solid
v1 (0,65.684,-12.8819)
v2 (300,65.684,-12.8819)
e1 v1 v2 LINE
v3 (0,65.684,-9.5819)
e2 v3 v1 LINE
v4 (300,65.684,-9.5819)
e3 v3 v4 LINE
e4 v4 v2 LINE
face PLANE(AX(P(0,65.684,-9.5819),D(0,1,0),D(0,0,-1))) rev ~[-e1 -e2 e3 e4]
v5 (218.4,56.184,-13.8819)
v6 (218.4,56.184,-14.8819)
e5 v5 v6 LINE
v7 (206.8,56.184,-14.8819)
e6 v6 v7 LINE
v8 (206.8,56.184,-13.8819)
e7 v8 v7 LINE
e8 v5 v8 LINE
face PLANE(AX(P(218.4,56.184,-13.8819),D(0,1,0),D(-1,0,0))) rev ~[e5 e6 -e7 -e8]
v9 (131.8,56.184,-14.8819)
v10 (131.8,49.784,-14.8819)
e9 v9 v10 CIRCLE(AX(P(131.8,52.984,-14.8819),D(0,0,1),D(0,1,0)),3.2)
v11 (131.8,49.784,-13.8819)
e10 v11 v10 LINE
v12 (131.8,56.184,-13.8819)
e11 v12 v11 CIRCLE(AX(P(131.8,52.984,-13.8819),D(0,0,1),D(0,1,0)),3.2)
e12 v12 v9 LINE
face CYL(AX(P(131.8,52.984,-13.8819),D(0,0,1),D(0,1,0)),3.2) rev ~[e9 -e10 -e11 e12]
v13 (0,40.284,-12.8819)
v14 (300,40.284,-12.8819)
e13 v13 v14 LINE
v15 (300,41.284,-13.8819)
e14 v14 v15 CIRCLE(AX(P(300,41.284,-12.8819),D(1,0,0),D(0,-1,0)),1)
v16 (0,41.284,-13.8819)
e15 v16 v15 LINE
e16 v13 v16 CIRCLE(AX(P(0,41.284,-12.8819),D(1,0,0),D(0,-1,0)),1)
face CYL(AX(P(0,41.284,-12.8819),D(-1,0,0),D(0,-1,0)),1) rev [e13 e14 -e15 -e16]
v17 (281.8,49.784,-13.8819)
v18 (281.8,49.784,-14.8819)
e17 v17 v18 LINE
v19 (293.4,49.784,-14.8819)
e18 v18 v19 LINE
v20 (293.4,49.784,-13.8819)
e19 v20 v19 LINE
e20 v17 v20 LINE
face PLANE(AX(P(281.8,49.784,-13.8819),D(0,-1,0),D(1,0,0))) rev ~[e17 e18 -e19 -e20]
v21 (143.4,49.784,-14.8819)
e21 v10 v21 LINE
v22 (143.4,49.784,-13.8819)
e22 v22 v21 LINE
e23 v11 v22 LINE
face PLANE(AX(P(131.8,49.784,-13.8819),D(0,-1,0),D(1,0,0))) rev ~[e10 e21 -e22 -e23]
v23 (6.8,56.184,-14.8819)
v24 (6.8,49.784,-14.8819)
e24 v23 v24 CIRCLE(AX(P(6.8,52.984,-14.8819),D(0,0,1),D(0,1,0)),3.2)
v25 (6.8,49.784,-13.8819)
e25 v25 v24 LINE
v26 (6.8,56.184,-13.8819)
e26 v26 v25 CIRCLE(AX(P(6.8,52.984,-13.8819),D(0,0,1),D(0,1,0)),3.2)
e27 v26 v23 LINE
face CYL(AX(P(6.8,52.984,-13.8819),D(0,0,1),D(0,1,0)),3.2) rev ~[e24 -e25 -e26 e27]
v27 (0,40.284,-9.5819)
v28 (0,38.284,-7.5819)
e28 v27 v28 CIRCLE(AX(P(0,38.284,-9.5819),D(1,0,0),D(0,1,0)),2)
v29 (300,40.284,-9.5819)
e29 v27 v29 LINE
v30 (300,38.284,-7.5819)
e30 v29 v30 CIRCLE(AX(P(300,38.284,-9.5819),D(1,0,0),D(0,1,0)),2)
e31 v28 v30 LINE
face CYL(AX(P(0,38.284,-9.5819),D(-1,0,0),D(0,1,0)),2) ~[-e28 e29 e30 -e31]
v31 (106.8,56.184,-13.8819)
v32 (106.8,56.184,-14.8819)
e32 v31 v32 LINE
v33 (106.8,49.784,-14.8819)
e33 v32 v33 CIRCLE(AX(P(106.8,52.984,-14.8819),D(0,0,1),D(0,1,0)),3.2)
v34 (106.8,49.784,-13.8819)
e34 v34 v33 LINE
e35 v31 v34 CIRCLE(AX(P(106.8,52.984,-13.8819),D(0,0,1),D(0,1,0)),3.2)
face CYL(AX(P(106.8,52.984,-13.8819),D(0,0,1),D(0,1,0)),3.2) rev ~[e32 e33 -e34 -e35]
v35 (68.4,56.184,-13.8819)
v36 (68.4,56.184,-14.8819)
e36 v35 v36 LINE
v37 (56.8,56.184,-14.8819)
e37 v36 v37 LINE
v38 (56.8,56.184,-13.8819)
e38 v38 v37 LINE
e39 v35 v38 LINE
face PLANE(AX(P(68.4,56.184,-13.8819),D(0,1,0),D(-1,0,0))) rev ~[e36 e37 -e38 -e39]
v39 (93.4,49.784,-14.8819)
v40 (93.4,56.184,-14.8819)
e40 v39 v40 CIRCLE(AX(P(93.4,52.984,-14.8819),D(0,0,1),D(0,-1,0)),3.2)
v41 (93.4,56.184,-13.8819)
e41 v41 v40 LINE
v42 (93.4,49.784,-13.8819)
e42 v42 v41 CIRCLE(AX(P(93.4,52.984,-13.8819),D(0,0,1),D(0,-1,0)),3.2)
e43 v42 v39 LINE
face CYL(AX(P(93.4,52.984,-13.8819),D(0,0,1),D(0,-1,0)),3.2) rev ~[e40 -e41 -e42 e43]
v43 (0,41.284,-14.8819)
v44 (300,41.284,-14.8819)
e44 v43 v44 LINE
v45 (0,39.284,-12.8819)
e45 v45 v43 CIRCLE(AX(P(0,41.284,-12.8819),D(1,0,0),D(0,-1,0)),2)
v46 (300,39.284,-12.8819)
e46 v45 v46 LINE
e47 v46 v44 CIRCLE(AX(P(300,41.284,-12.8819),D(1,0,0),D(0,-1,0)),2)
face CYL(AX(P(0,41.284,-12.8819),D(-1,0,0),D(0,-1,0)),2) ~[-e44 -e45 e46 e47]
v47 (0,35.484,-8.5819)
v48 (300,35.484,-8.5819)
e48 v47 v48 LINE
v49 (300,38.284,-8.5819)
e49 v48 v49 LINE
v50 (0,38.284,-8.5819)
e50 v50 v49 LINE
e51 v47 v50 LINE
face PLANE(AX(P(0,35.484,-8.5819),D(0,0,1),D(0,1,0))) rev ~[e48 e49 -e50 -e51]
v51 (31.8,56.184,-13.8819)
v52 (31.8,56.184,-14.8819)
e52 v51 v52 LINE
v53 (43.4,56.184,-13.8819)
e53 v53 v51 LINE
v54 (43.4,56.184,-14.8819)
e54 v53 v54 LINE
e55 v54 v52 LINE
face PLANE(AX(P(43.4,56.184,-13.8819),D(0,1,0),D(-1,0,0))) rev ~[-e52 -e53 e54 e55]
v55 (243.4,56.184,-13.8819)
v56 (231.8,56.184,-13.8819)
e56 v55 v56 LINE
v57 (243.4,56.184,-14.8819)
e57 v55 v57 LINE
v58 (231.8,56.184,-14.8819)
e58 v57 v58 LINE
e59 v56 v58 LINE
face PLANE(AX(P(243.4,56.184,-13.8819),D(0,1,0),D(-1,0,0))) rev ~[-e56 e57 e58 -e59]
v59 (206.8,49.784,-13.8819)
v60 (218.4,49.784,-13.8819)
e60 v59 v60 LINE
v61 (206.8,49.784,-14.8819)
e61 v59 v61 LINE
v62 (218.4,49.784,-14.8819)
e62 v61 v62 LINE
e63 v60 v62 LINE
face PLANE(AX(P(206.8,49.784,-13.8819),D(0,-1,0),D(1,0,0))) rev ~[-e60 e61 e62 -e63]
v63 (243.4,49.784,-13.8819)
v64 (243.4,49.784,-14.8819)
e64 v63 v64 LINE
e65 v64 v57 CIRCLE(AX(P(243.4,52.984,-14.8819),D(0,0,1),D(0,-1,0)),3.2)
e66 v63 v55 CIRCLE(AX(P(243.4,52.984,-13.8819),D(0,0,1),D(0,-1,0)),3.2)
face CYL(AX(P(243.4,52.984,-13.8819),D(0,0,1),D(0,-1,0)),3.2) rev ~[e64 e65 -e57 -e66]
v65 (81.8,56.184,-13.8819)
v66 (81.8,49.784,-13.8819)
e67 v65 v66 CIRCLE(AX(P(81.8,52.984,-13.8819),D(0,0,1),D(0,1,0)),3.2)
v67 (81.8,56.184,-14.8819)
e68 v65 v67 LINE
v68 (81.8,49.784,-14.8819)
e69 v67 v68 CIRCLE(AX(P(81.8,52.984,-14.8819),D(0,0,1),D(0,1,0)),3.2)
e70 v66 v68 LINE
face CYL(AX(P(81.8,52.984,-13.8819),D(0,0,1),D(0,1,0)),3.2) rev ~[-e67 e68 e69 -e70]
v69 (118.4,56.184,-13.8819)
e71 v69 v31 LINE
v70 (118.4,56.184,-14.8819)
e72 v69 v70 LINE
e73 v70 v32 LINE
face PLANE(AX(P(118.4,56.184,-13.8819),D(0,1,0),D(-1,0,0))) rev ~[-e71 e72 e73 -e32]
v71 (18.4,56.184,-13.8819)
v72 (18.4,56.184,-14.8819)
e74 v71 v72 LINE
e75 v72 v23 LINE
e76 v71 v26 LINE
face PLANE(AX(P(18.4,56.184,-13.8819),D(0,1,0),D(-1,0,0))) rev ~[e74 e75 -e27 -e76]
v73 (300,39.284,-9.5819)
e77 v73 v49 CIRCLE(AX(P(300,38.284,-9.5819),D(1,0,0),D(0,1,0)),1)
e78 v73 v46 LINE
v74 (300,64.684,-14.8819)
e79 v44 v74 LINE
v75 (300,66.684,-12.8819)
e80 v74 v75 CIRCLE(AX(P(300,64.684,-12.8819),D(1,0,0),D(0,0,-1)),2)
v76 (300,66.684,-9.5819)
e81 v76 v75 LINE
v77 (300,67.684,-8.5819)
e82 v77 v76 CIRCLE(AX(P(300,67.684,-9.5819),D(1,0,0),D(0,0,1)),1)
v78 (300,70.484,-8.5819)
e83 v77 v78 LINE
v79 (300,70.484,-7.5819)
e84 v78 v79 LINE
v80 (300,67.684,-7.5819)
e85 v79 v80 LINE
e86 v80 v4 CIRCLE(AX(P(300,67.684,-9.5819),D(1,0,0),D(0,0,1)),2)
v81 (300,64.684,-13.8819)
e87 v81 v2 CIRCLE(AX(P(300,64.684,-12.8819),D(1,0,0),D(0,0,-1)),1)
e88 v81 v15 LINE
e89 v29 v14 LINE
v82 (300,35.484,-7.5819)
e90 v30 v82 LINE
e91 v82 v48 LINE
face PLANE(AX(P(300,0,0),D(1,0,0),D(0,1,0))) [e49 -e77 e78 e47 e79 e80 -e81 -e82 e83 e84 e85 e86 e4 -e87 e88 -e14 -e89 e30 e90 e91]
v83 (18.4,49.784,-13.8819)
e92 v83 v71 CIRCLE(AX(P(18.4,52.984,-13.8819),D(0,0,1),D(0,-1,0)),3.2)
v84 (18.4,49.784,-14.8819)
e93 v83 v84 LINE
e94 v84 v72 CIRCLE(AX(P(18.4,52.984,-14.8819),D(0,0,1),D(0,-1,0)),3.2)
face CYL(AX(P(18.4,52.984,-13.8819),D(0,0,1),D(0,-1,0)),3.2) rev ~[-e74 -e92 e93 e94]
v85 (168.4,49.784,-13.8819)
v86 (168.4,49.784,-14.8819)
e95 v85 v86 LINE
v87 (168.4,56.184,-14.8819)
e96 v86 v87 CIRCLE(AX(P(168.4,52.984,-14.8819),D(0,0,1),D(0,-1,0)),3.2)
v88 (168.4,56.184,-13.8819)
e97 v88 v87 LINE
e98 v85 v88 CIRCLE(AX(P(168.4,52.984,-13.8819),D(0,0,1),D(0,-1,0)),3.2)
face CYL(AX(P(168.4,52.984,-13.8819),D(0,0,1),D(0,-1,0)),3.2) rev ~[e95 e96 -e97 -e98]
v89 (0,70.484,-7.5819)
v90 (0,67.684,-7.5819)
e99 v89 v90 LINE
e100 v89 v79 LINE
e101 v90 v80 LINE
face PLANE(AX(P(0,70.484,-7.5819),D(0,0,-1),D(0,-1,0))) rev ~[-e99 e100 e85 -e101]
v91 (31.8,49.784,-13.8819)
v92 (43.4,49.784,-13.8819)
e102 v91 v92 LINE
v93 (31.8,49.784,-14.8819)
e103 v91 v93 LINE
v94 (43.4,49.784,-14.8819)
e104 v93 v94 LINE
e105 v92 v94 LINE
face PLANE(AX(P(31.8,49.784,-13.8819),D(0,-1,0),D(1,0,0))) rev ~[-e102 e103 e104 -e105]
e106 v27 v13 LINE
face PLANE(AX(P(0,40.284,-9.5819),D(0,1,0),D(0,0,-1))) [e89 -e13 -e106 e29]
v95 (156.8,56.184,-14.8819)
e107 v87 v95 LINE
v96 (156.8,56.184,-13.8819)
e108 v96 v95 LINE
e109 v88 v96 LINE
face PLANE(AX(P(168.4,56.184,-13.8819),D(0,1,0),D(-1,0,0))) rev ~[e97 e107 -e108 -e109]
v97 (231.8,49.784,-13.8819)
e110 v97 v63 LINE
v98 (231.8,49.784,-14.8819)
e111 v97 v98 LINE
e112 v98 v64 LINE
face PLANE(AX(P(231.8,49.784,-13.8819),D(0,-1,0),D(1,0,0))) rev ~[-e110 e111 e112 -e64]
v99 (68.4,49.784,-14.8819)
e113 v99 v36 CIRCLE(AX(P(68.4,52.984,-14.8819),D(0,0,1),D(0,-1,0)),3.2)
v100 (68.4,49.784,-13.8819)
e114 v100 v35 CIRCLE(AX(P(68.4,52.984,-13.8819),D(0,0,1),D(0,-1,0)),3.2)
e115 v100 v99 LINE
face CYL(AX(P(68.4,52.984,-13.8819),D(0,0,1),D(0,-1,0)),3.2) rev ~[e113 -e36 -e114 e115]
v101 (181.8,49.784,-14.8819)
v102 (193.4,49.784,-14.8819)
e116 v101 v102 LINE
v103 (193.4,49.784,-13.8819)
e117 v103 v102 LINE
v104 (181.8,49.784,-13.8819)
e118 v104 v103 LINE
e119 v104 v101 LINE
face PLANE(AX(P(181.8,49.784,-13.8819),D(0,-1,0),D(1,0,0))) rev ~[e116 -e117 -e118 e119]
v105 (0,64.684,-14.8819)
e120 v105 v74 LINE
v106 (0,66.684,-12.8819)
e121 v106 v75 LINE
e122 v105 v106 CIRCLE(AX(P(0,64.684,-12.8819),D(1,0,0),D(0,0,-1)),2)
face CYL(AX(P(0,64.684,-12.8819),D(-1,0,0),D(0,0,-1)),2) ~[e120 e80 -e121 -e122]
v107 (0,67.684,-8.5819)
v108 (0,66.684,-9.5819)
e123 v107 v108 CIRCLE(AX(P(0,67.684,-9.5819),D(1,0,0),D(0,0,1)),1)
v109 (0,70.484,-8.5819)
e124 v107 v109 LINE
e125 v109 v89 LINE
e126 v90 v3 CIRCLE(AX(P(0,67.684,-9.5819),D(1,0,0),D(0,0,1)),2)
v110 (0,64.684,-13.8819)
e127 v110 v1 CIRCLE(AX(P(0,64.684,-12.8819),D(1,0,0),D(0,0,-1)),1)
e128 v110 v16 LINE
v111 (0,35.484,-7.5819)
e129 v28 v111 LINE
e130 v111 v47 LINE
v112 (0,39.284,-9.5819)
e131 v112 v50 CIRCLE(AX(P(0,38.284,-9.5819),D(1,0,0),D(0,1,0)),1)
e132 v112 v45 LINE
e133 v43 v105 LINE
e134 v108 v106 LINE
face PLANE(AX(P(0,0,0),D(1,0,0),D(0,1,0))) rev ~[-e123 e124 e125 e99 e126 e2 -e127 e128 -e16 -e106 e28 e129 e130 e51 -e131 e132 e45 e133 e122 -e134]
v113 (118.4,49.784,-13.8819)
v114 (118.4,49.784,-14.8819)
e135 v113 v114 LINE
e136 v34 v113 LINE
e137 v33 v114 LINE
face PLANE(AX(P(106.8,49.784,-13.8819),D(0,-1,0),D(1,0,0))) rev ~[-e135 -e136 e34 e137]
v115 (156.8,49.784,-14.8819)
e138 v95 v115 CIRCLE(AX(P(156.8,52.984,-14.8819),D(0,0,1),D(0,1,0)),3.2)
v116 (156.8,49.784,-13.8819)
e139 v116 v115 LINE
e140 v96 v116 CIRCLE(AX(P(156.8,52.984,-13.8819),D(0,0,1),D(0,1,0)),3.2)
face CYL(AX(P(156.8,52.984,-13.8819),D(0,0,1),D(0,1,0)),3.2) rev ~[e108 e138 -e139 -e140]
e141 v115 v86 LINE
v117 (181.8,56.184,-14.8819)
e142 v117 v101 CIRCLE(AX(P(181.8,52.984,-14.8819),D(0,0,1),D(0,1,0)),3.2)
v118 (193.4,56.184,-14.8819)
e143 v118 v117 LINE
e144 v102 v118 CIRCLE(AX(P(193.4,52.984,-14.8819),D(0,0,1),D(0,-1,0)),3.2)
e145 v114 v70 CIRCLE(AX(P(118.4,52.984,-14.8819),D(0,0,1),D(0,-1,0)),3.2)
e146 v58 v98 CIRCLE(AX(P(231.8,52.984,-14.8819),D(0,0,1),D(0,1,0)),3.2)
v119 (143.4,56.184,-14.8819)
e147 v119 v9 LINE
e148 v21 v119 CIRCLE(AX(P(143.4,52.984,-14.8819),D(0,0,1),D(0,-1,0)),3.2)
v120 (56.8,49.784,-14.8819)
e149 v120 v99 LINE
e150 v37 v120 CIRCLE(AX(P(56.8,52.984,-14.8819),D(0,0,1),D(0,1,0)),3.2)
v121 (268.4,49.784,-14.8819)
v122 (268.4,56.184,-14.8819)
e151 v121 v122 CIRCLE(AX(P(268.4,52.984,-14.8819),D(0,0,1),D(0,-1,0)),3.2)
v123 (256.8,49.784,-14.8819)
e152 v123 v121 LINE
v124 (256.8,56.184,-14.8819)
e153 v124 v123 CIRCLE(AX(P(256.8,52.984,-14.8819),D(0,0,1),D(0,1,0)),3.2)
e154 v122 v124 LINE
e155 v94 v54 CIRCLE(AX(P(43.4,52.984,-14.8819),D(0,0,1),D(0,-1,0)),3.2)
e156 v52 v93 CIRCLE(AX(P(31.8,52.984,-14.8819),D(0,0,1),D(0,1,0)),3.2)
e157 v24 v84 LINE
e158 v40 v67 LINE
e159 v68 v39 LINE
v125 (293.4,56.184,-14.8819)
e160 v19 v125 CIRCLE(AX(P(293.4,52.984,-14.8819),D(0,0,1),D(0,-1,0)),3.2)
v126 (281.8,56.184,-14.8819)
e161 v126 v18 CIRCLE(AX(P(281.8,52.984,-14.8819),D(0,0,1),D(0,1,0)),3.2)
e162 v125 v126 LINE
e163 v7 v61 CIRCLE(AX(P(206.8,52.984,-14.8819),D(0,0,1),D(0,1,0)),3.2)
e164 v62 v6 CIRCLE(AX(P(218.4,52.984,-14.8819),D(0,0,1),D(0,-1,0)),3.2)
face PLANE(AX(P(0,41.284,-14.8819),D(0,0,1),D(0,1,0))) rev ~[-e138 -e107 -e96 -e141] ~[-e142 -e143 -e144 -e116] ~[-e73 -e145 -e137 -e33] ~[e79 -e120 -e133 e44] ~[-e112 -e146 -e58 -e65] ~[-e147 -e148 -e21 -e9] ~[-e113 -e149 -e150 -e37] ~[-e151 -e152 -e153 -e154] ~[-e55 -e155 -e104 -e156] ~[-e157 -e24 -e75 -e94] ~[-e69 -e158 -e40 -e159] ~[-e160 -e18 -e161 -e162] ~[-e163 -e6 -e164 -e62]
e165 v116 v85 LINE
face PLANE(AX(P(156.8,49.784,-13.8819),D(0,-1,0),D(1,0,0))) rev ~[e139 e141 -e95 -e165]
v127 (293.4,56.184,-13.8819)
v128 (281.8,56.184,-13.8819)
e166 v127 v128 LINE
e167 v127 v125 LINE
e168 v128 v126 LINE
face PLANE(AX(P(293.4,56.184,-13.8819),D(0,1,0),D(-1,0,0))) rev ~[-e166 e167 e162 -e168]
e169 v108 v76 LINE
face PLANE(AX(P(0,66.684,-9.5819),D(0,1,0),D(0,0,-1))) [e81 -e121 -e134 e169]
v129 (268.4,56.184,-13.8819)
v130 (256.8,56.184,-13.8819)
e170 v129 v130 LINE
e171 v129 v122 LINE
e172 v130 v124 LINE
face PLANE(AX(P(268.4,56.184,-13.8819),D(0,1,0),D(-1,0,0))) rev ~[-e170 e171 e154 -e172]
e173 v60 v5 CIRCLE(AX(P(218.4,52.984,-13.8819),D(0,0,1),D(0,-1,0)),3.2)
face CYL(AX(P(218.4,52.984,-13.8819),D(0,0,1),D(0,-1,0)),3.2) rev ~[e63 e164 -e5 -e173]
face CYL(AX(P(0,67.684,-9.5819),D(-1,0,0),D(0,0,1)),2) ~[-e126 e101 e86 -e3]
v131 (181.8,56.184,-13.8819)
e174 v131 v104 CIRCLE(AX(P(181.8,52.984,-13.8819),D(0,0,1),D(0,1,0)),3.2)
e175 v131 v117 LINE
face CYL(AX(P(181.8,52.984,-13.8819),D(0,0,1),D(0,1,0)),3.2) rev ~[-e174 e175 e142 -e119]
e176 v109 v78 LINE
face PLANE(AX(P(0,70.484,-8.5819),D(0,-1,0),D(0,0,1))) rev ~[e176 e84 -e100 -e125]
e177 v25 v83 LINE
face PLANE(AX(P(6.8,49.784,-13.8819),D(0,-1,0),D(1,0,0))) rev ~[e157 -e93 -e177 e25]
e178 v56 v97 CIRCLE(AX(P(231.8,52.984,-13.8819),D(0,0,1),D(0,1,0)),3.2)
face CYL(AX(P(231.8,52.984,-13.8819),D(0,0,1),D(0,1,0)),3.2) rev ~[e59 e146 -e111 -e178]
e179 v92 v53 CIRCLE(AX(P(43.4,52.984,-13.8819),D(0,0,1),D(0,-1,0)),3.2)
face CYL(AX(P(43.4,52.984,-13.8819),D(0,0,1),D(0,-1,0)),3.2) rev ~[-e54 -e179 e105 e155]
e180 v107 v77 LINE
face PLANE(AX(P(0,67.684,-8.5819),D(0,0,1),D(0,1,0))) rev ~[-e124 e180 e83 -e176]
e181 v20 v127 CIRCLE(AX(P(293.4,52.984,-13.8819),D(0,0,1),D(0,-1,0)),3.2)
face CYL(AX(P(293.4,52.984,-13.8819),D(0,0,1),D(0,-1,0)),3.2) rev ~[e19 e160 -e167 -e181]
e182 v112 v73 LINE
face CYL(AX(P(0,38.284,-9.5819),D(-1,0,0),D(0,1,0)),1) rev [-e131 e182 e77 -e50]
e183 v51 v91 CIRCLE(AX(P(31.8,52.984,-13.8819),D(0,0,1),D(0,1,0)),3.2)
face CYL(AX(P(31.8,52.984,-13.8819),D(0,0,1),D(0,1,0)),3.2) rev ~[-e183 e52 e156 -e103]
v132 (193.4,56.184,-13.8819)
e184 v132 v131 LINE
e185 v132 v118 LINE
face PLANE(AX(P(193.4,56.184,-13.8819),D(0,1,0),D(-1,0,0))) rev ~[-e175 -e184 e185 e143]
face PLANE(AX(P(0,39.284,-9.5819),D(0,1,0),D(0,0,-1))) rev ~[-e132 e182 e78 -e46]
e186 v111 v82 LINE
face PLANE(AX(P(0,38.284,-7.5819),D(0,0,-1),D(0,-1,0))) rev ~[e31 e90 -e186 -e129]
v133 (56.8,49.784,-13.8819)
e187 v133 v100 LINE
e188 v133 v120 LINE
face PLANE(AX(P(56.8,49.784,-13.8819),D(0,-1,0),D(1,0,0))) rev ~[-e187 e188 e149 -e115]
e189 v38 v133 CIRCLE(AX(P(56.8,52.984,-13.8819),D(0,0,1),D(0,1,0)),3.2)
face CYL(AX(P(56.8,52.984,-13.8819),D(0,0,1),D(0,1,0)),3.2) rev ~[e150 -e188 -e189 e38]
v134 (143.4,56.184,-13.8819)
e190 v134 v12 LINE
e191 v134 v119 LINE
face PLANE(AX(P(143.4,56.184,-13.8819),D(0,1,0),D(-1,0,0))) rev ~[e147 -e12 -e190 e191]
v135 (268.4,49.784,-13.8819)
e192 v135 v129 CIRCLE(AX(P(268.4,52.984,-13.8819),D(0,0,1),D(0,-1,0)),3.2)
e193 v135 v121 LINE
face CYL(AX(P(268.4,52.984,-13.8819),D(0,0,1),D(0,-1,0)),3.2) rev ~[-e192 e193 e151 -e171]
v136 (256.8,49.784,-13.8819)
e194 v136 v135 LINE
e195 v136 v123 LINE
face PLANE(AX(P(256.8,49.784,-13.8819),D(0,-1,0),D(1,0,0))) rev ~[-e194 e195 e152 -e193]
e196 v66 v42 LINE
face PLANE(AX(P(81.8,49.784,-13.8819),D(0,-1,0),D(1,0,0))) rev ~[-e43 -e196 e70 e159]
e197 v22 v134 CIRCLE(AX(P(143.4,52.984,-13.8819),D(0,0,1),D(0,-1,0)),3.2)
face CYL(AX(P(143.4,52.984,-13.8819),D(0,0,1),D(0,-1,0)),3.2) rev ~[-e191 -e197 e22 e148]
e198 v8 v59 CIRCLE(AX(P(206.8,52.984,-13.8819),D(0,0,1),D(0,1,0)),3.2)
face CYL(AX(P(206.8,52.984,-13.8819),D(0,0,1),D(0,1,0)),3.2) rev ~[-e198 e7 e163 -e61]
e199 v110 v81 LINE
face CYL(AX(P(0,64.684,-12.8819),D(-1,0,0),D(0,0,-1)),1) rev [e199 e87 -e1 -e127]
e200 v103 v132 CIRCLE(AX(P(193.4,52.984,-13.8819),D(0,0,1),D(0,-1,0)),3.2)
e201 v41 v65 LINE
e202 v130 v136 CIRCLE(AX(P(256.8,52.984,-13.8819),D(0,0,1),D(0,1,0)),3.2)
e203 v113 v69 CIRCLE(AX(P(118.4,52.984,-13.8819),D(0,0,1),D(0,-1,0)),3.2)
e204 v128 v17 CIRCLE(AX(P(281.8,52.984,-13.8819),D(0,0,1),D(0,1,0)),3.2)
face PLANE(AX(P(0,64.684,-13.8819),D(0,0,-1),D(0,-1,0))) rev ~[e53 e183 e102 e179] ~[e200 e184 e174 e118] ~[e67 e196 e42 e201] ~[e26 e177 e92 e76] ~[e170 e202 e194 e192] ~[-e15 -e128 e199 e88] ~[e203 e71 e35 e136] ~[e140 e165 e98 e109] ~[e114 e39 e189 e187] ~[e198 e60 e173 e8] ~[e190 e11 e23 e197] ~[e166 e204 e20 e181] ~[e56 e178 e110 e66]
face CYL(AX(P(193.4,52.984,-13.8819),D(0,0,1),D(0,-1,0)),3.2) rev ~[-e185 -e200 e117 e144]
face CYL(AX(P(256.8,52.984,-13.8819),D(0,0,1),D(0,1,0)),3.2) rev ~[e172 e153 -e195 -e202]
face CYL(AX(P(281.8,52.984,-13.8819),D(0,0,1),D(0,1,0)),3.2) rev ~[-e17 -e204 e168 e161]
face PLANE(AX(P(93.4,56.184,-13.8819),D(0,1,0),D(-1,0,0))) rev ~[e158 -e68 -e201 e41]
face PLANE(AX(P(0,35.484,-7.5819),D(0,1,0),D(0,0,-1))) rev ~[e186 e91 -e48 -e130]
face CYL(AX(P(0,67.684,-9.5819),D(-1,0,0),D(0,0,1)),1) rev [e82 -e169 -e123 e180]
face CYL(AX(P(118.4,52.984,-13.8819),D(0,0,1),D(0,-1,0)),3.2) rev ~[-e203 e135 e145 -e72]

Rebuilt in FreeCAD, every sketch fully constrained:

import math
import FreeCAD as App
import Part
import Sketcher
from FreeCAD import Vector

doc = App.newDocument("Part")
params = doc.addObject("Spreadsheet::Sheet", "Params")
for row, (alias, value) in enumerate([
    ("sketch1_radius", "2 mm"),
    ("sketch1_radius2", "1 mm"),
    ("sketch1_width", "23.4 mm"),
    ("sketch1_height", "3.3 mm"),
    ("pad1_length", "300 mm"),
    ("sketch2_radius", "3.2 mm"),
    ("sketch2_width", "11.6 mm"),
    ("pocket1_length", "25 mm"),
], start=1):
    params.set(f"A{row}", alias)
    params.set(f"B{row}", "=" + value)
    params.setAlias(f"B{row}", alias)

body = doc.addObject("PartDesign::Body", "Body")

# Sketch on YZ plane
sketch1 = body.newObject("Sketcher::SketchObject", "Sketch")
sketch1.AttachmentSupport = (doc.getObject("YZ_Plane"), [""])
sketch1.MapMode = "FlatFace"
sketch1.addGeometry(Part.ArcOfCircle(Part.Circle(Vector(41.3, -12.9, 0), Vector(0, 0, 1), 2), math.radians(180), math.radians(270)), False)
sketch1.addGeometry(Part.LineSegment(Vector(41.3, -14.9, 0), Vector(64.7, -14.9, 0)), False)
sketch1.addGeometry(Part.ArcOfCircle(Part.Circle(Vector(64.7, -12.9, 0), Vector(0, 0, 1), 2), math.radians(-90), math.radians(0)), False)
sketch1.addGeometry(Part.LineSegment(Vector(66.7, -12.9, 0), Vector(66.7, -9.6, 0)), False)
sketch1.addGeometry(Part.ArcOfCircle(Part.Circle(Vector(67.7, -9.6, 0), Vector(0, 0, 1), 1), math.radians(90), math.radians(180)), False)
sketch1.addGeometry(Part.LineSegment(Vector(67.7, -8.6, 0), Vector(70.5, -8.6, 0)), False)
sketch1.addGeometry(Part.LineSegment(Vector(70.5, -8.6, 0), Vector(70.5, -7.6, 0)), False)
sketch1.addGeometry(Part.LineSegment(Vector(70.5, -7.6, 0), Vector(67.7, -7.6, 0)), False)
sketch1.addGeometry(Part.ArcOfCircle(Part.Circle(Vector(67.7, -9.6, 0), Vector(0, 0, 1), 2), math.radians(90), math.radians(180)), False)
sketch1.addGeometry(Part.LineSegment(Vector(65.7, -9.6, 0), Vector(65.7, -12.9, 0)), False)
sketch1.addGeometry(Part.ArcOfCircle(Part.Circle(Vector(64.7, -12.9, 0), Vector(0, 0, 1), 1), math.radians(-90), math.radians(0)), False)
sketch1.addGeometry(Part.LineSegment(Vector(64.7, -13.9, 0), Vector(41.3, -13.9, 0)), False)
sketch1.addGeometry(Part.ArcOfCircle(Part.Circle(Vector(41.3, -12.9, 0), Vector(0, 0, 1), 1), math.radians(180), math.radians(270)), False)
sketch1.addGeometry(Part.LineSegment(Vector(40.3, -12.9, 0), Vector(40.3, -9.6, 0)), False)
sketch1.addGeometry(Part.ArcOfCircle(Part.Circle(Vector(38.3, -9.6, 0), Vector(0, 0, 1), 2), math.radians(0), math.radians(90)), False)
sketch1.addGeometry(Part.LineSegment(Vector(38.3, -7.6, 0), Vector(35.5, -7.6, 0)), False)
sketch1.addGeometry(Part.LineSegment(Vector(35.5, -7.6, 0), Vector(35.5, -8.6, 0)), False)
sketch1.addGeometry(Part.LineSegment(Vector(35.5, -8.6, 0), Vector(38.3, -8.6, 0)), False)
sketch1.addGeometry(Part.ArcOfCircle(Part.Circle(Vector(38.3, -9.6, 0), Vector(0, 0, 1), 1), math.radians(0), math.radians(90)), False)
sketch1.addGeometry(Part.LineSegment(Vector(39.3, -9.6, 0), Vector(39.3, -12.9, 0)), False)
sketch1.addConstraint(Sketcher.Constraint("Tangent", 0, 2, 1, 1))
sketch1.addConstraint(Sketcher.Constraint("Tangent", 1, 2, 2, 1))
sketch1.addConstraint(Sketcher.Constraint("Tangent", 2, 2, 3, 1))
sketch1.addConstraint(Sketcher.Constraint("Tangent", 3, 2, 4, 2))
sketch1.addConstraint(Sketcher.Constraint("Tangent", 4, 1, 5, 1))
sketch1.addConstraint(Sketcher.Constraint("Coincident", 5, 2, 6, 1))
sketch1.addConstraint(Sketcher.Constraint("Coincident", 6, 2, 7, 1))
sketch1.addConstraint(Sketcher.Constraint("Tangent", 7, 2, 8, 1))
sketch1.addConstraint(Sketcher.Constraint("Tangent", 8, 2, 9, 1))
sketch1.addConstraint(Sketcher.Constraint("Tangent", 9, 2, 10, 2))
sketch1.addConstraint(Sketcher.Constraint("Tangent", 10, 1, 11, 1))
sketch1.addConstraint(Sketcher.Constraint("Tangent", 11, 2, 12, 2))
sketch1.addConstraint(Sketcher.Constraint("Tangent", 12, 1, 13, 1))
sketch1.addConstraint(Sketcher.Constraint("Tangent", 13, 2, 14, 1))
sketch1.addConstraint(Sketcher.Constraint("Tangent", 14, 2, 15, 1))
sketch1.addConstraint(Sketcher.Constraint("Coincident", 15, 2, 16, 1))
sketch1.addConstraint(Sketcher.Constraint("Coincident", 16, 2, 17, 1))
sketch1.addConstraint(Sketcher.Constraint("Tangent", 17, 2, 18, 2))
sketch1.addConstraint(Sketcher.Constraint("Tangent", 18, 1, 19, 1))
sketch1.addConstraint(Sketcher.Constraint("Tangent", 19, 2, 0, 1))
sketch1.addConstraint(Sketcher.Constraint("Horizontal", 1))
sketch1.addConstraint(Sketcher.Constraint("Vertical", 3))
sketch1.addConstraint(Sketcher.Constraint("Horizontal", 5))
sketch1.addConstraint(Sketcher.Constraint("Vertical", 6))
sketch1.addConstraint(Sketcher.Constraint("Horizontal", 7))
sketch1.addConstraint(Sketcher.Constraint("Vertical", 9))
sketch1.addConstraint(Sketcher.Constraint("Horizontal", 11))
sketch1.addConstraint(Sketcher.Constraint("Vertical", 13))
sketch1.addConstraint(Sketcher.Constraint("Horizontal", 15))
sketch1.addConstraint(Sketcher.Constraint("Vertical", 16))
sketch1.addConstraint(Sketcher.Constraint("Horizontal", 17))
sketch1.addConstraint(Sketcher.Constraint("Vertical", 19))
sketch1.addConstraint(Sketcher.Constraint("Coincident", 8, 3, 4, 3))
sketch1.addConstraint(Sketcher.Constraint("Coincident", 10, 3, 2, 3))
sketch1.addConstraint(Sketcher.Constraint("Coincident", 12, 3, 0, 3))
sketch1.addConstraint(Sketcher.Constraint("Coincident", 18, 3, 14, 3))
sketch1.addConstraint(Sketcher.Constraint("Equal", 0, 2))
sketch1.addConstraint(Sketcher.Constraint("Equal", 2, 8))
sketch1.addConstraint(Sketcher.Constraint("Equal", 8, 14))
sketch1.addConstraint(Sketcher.Constraint("Horizontal", 8, 3, 14, 3))
sketch1.addConstraint(Sketcher.Constraint("Equal", 7, 15))
sketch1.addConstraint(Sketcher.Constraint("Radius", 0, 2.0))
sketch1.addConstraint(Sketcher.Constraint("Radius", 4, 1.0))
sketch1.addConstraint(Sketcher.Constraint("DistanceX", 15, 2, 13, 2, 4.8))
sketch1.addConstraint(Sketcher.Constraint("DistanceX", 1, 1, 1, 2, 23.4))
sketch1.addConstraint(Sketcher.Constraint("DistanceY", 3, 1, 3, 2, 3.3))
sketch1.addConstraint(Sketcher.Constraint("DistanceX", -1, 1, 0, 3, 41.284))
sketch1.addConstraint(Sketcher.Constraint("DistanceY", 0, 3, -1, 1, 12.882))
sketch1.setExpression("Constraints[41]", "Params.sketch1_radius")
sketch1.setExpression("Constraints[42]", "Params.sketch1_radius2")
sketch1.setExpression("Constraints[44]", "Params.sketch1_width")
sketch1.setExpression("Constraints[45]", "Params.sketch1_height")
pad1 = body.newObject("PartDesign::Pad", "Pad")
pad1.Profile = sketch1
pad1.setExpression("Length", "Params.pad1_length")

# Sketch on XY plane
sketch2 = body.newObject("Sketcher::SketchObject", "Sketch001")
sketch2.AttachmentSupport = (doc.getObject("XY_Plane"), [""])
sketch2.MapMode = "FlatFace"
sketch2.AttachmentOffset = App.Placement(Vector(0, 0, -13.8819), App.Rotation())
sketch2.addGeometry(Part.ArcOfCircle(Part.Circle(Vector(6.8, 53, 0), Vector(0, 0, 1), 3.2), math.radians(90), math.radians(270)), False)
sketch2.addGeometry(Part.LineSegment(Vector(6.8, 49.8, 0), Vector(18.4, 49.8, 0)), False)
sketch2.addGeometry(Part.ArcOfCircle(Part.Circle(Vector(18.4, 53, 0), Vector(0, 0, 1), 3.2), math.radians(-90), math.radians(90)), False)
sketch2.addGeometry(Part.LineSegment(Vector(18.4, 56.2, 0), Vector(6.8, 56.2, 0)), False)
sketch2.addGeometry(Part.LineSegment(Vector(43.4, 56.2, 0), Vector(31.8, 56.2, 0)), False)
sketch2.addGeometry(Part.ArcOfCircle(Part.Circle(Vector(31.8, 53, 0), Vector(0, 0, 1), 3.2), math.radians(90), math.radians(270)), False)
sketch2.addGeometry(Part.LineSegment(Vector(31.8, 49.8, 0), Vector(43.4, 49.8, 0)), False)
sketch2.addGeometry(Part.ArcOfCircle(Part.Circle(Vector(43.4, 53, 0), Vector(0, 0, 1), 3.2), math.radians(-90), math.radians(90)), False)
sketch2.addGeometry(Part.LineSegment(Vector(68.4, 56.2, 0), Vector(56.8, 56.2, 0)), False)
sketch2.addGeometry(Part.ArcOfCircle(Part.Circle(Vector(56.8, 53, 0), Vector(0, 0, 1), 3.2), math.radians(90), math.radians(270)), False)
sketch2.addGeometry(Part.LineSegment(Vector(56.8, 49.8, 0), Vector(68.4, 49.8, 0)), False)
sketch2.addGeometry(Part.ArcOfCircle(Part.Circle(Vector(68.4, 53, 0), Vector(0, 0, 1), 3.2), math.radians(-90), math.radians(90)), False)
sketch2.addGeometry(Part.LineSegment(Vector(93.4, 56.2, 0), Vector(81.8, 56.2, 0)), False)
sketch2.addGeometry(Part.ArcOfCircle(Part.Circle(Vector(81.8, 53, 0), Vector(0, 0, 1), 3.2), math.radians(90), math.radians(270)), False)
sketch2.addGeometry(Part.LineSegment(Vector(81.8, 49.8, 0), Vector(93.4, 49.8, 0)), False)
sketch2.addGeometry(Part.ArcOfCircle(Part.Circle(Vector(93.4, 53, 0), Vector(0, 0, 1), 3.2), math.radians(-90), math.radians(90)), False)
sketch2.addGeometry(Part.LineSegment(Vector(118.4, 56.2, 0), Vector(106.8, 56.2, 0)), False)
sketch2.addGeometry(Part.ArcOfCircle(Part.Circle(Vector(106.8, 53, 0), Vector(0, 0, 1), 3.2), math.radians(90), math.radians(270)), False)
sketch2.addGeometry(Part.LineSegment(Vector(106.8, 49.8, 0), Vector(118.4, 49.8, 0)), False)
sketch2.addGeometry(Part.ArcOfCircle(Part.Circle(Vector(118.4, 53, 0), Vector(0, 0, 1), 3.2), math.radians(-90), math.radians(90)), False)
sketch2.addGeometry(Part.LineSegment(Vector(143.4, 56.2, 0), Vector(131.8, 56.2, 0)), False)
sketch2.addGeometry(Part.ArcOfCircle(Part.Circle(Vector(131.8, 53, 0), Vector(0, 0, 1), 3.2), math.radians(90), math.radians(270)), False)
sketch2.addGeometry(Part.LineSegment(Vector(131.8, 49.8, 0), Vector(143.4, 49.8, 0)), False)
sketch2.addGeometry(Part.ArcOfCircle(Part.Circle(Vector(143.4, 53, 0), Vector(0, 0, 1), 3.2), math.radians(-90), math.radians(90)), False)
sketch2.addGeometry(Part.LineSegment(Vector(168.4, 56.2, 0), Vector(156.8, 56.2, 0)), False)
sketch2.addGeometry(Part.ArcOfCircle(Part.Circle(Vector(156.8, 53, 0), Vector(0, 0, 1), 3.2), math.radians(90), math.radians(270)), False)
sketch2.addGeometry(Part.LineSegment(Vector(156.8, 49.8, 0), Vector(168.4, 49.8, 0)), False)
sketch2.addGeometry(Part.ArcOfCircle(Part.Circle(Vector(168.4, 53, 0), Vector(0, 0, 1), 3.2), math.radians(-90), math.radians(90)), False)
sketch2.addGeometry(Part.LineSegment(Vector(193.4, 56.2, 0), Vector(181.8, 56.2, 0)), False)
sketch2.addGeometry(Part.ArcOfCircle(Part.Circle(Vector(181.8, 53, 0), Vector(0, 0, 1), 3.2), math.radians(90), math.radians(270)), False)
sketch2.addGeometry(Part.LineSegment(Vector(181.8, 49.8, 0), Vector(193.4, 49.8, 0)), False)
sketch2.addGeometry(Part.ArcOfCircle(Part.Circle(Vector(193.4, 53, 0), Vector(0, 0, 1), 3.2), math.radians(-90), math.radians(90)), False)
sketch2.addGeometry(Part.LineSegment(Vector(218.4, 56.2, 0), Vector(206.8, 56.2, 0)), False)
sketch2.addGeometry(Part.ArcOfCircle(Part.Circle(Vector(206.8, 53, 0), Vector(0, 0, 1), 3.2), math.radians(90), math.radians(270)), False)
sketch2.addGeometry(Part.LineSegment(Vector(206.8, 49.8, 0), Vector(218.4, 49.8, 0)), False)
sketch2.addGeometry(Part.ArcOfCircle(Part.Circle(Vector(218.4, 53, 0), Vector(0, 0, 1), 3.2), math.radians(-90), math.radians(90)), False)
sketch2.addGeometry(Part.LineSegment(Vector(243.4, 56.2, 0), Vector(231.8, 56.2, 0)), False)
sketch2.addGeometry(Part.ArcOfCircle(Part.Circle(Vector(231.8, 53, 0), Vector(0, 0, 1), 3.2), math.radians(90), math.radians(270)), False)
sketch2.addGeometry(Part.LineSegment(Vector(231.8, 49.8, 0), Vector(243.4, 49.8, 0)), False)
sketch2.addGeometry(Part.ArcOfCircle(Part.Circle(Vector(243.4, 53, 0), Vector(0, 0, 1), 3.2), math.radians(-90), math.radians(90)), False)
sketch2.addGeometry(Part.LineSegment(Vector(268.4, 56.2, 0), Vector(256.8, 56.2, 0)), False)
sketch2.addGeometry(Part.ArcOfCircle(Part.Circle(Vector(256.8, 53, 0), Vector(0, 0, 1), 3.2), math.radians(90), math.radians(270)), False)
sketch2.addGeometry(Part.LineSegment(Vector(256.8, 49.8, 0), Vector(268.4, 49.8, 0)), False)
sketch2.addGeometry(Part.ArcOfCircle(Part.Circle(Vector(268.4, 53, 0), Vector(0, 0, 1), 3.2), math.radians(-90), math.radians(90)), False)
sketch2.addGeometry(Part.LineSegment(Vector(293.4, 56.2, 0), Vector(281.8, 56.2, 0)), False)
sketch2.addGeometry(Part.ArcOfCircle(Part.Circle(Vector(281.8, 53, 0), Vector(0, 0, 1), 3.2), math.radians(90), math.radians(270)), False)
sketch2.addGeometry(Part.LineSegment(Vector(281.8, 49.8, 0), Vector(293.4, 49.8, 0)), False)
sketch2.addGeometry(Part.ArcOfCircle(Part.Circle(Vector(293.4, 53, 0), Vector(0, 0, 1), 3.2), math.radians(-90), math.radians(90)), False)
sketch2.addConstraint(Sketcher.Constraint("Tangent", 0, 2, 1, 1))
sketch2.addConstraint(Sketcher.Constraint("Tangent", 1, 2, 2, 1))
sketch2.addConstraint(Sketcher.Constraint("Tangent", 2, 2, 3, 1))
sketch2.addConstraint(Sketcher.Constraint("Tangent", 3, 2, 0, 1))
sketch2.addConstraint(Sketcher.Constraint("Tangent", 4, 2, 5, 1))
sketch2.addConstraint(Sketcher.Constraint("Tangent", 5, 2, 6, 1))
sketch2.addConstraint(Sketcher.Constraint("Tangent", 6, 2, 7, 1))
sketch2.addConstraint(Sketcher.Constraint("Tangent", 7, 2, 4, 1))
sketch2.addConstraint(Sketcher.Constraint("Tangent", 8, 2, 9, 1))
sketch2.addConstraint(Sketcher.Constraint("Tangent", 9, 2, 10, 1))
sketch2.addConstraint(Sketcher.Constraint("Tangent", 10, 2, 11, 1))
sketch2.addConstraint(Sketcher.Constraint("Tangent", 11, 2, 8, 1))
sketch2.addConstraint(Sketcher.Constraint("Tangent", 12, 2, 13, 1))
sketch2.addConstraint(Sketcher.Constraint("Tangent", 13, 2, 14, 1))
sketch2.addConstraint(Sketcher.Constraint("Tangent", 14, 2, 15, 1))
sketch2.addConstraint(Sketcher.Constraint("Tangent", 15, 2, 12, 1))
sketch2.addConstraint(Sketcher.Constraint("Tangent", 16, 2, 17, 1))
sketch2.addConstraint(Sketcher.Constraint("Tangent", 17, 2, 18, 1))
sketch2.addConstraint(Sketcher.Constraint("Tangent", 18, 2, 19, 1))
sketch2.addConstraint(Sketcher.Constraint("Tangent", 19, 2, 16, 1))
sketch2.addConstraint(Sketcher.Constraint("Tangent", 20, 2, 21, 1))
sketch2.addConstraint(Sketcher.Constraint("Tangent", 21, 2, 22, 1))
sketch2.addConstraint(Sketcher.Constraint("Tangent", 22, 2, 23, 1))
sketch2.addConstraint(Sketcher.Constraint("Tangent", 23, 2, 20, 1))
sketch2.addConstraint(Sketcher.Constraint("Tangent", 24, 2, 25, 1))
sketch2.addConstraint(Sketcher.Constraint("Tangent", 25, 2, 26, 1))
sketch2.addConstraint(Sketcher.Constraint("Tangent", 26, 2, 27, 1))
sketch2.addConstraint(Sketcher.Constraint("Tangent", 27, 2, 24, 1))
sketch2.addConstraint(Sketcher.Constraint("Tangent", 28, 2, 29, 1))
sketch2.addConstraint(Sketcher.Constraint("Tangent", 29, 2, 30, 1))
sketch2.addConstraint(Sketcher.Constraint("Tangent", 30, 2, 31, 1))
sketch2.addConstraint(Sketcher.Constraint("Tangent", 31, 2, 28, 1))
sketch2.addConstraint(Sketcher.Constraint("Tangent", 32, 2, 33, 1))
sketch2.addConstraint(Sketcher.Constraint("Tangent", 33, 2, 34, 1))
sketch2.addConstraint(Sketcher.Constraint("Tangent", 34, 2, 35, 1))
sketch2.addConstraint(Sketcher.Constraint("Tangent", 35, 2, 32, 1))
sketch2.addConstraint(Sketcher.Constraint("Tangent", 36, 2, 37, 1))
sketch2.addConstraint(Sketcher.Constraint("Tangent", 37, 2, 38, 1))
sketch2.addConstraint(Sketcher.Constraint("Tangent", 38, 2, 39, 1))
sketch2.addConstraint(Sketcher.Constraint("Tangent", 39, 2, 36, 1))
sketch2.addConstraint(Sketcher.Constraint("Tangent", 40, 2, 41, 1))
sketch2.addConstraint(Sketcher.Constraint("Tangent", 41, 2, 42, 1))
sketch2.addConstraint(Sketcher.Constraint("Tangent", 42, 2, 43, 1))
sketch2.addConstraint(Sketcher.Constraint("Tangent", 43, 2, 40, 1))
sketch2.addConstraint(Sketcher.Constraint("Tangent", 44, 2, 45, 1))
sketch2.addConstraint(Sketcher.Constraint("Tangent", 45, 2, 46, 1))
sketch2.addConstraint(Sketcher.Constraint("Tangent", 46, 2, 47, 1))
sketch2.addConstraint(Sketcher.Constraint("Tangent", 47, 2, 44, 1))
sketch2.addConstraint(Sketcher.Constraint("Horizontal", 1))
sketch2.addConstraint(Sketcher.Constraint("Horizontal", 3))
sketch2.addConstraint(Sketcher.Constraint("Horizontal", 4))
sketch2.addConstraint(Sketcher.Constraint("Horizontal", 6))
sketch2.addConstraint(Sketcher.Constraint("Horizontal", 8))
sketch2.addConstraint(Sketcher.Constraint("Horizontal", 10))
sketch2.addConstraint(Sketcher.Constraint("Horizontal", 12))
sketch2.addConstraint(Sketcher.Constraint("Horizontal", 14))
sketch2.addConstraint(Sketcher.Constraint("Horizontal", 16))
sketch2.addConstraint(Sketcher.Constraint("Horizontal", 18))
sketch2.addConstraint(Sketcher.Constraint("Horizontal", 20))
sketch2.addConstraint(Sketcher.Constraint("Horizontal", 22))
sketch2.addConstraint(Sketcher.Constraint("Horizontal", 24))
sketch2.addConstraint(Sketcher.Constraint("Horizontal", 26))
sketch2.addConstraint(Sketcher.Constraint("Horizontal", 28))
sketch2.addConstraint(Sketcher.Constraint("Horizontal", 30))
sketch2.addConstraint(Sketcher.Constraint("Horizontal", 32))
sketch2.addConstraint(Sketcher.Constraint("Horizontal", 34))
sketch2.addConstraint(Sketcher.Constraint("Horizontal", 36))
sketch2.addConstraint(Sketcher.Constraint("Horizontal", 38))
sketch2.addConstraint(Sketcher.Constraint("Horizontal", 40))
sketch2.addConstraint(Sketcher.Constraint("Horizontal", 42))
sketch2.addConstraint(Sketcher.Constraint("Horizontal", 44))
sketch2.addConstraint(Sketcher.Constraint("Horizontal", 46))
sketch2.addConstraint(Sketcher.Constraint("Equal", 2, 5))
sketch2.addConstraint(Sketcher.Constraint("Equal", 7, 9))
sketch2.addConstraint(Sketcher.Constraint("Equal", 11, 13))
sketch2.addConstraint(Sketcher.Constraint("Equal", 15, 17))
sketch2.addConstraint(Sketcher.Constraint("Equal", 19, 21))
sketch2.addConstraint(Sketcher.Constraint("Equal", 23, 25))
sketch2.addConstraint(Sketcher.Constraint("Equal", 27, 29))
sketch2.addConstraint(Sketcher.Constraint("Equal", 31, 33))
sketch2.addConstraint(Sketcher.Constraint("Equal", 35, 37))
sketch2.addConstraint(Sketcher.Constraint("Equal", 39, 41))
sketch2.addConstraint(Sketcher.Constraint("Equal", 43, 45))
sketch2.addConstraint(Sketcher.Constraint("Horizontal", 2, 3, 5, 3))
sketch2.addConstraint(Sketcher.Constraint("Horizontal", 7, 3, 9, 3))
sketch2.addConstraint(Sketcher.Constraint("Horizontal", 11, 3, 13, 3))
sketch2.addConstraint(Sketcher.Constraint("Horizontal", 15, 3, 17, 3))
sketch2.addConstraint(Sketcher.Constraint("Horizontal", 19, 3, 21, 3))
sketch2.addConstraint(Sketcher.Constraint("Horizontal", 23, 3, 25, 3))
sketch2.addConstraint(Sketcher.Constraint("Horizontal", 27, 3, 29, 3))
sketch2.addConstraint(Sketcher.Constraint("Horizontal", 31, 3, 33, 3))
sketch2.addConstraint(Sketcher.Constraint("Horizontal", 35, 3, 37, 3))
sketch2.addConstraint(Sketcher.Constraint("Horizontal", 39, 3, 41, 3))
sketch2.addConstraint(Sketcher.Constraint("Horizontal", 43, 3, 45, 3))
sketch2.addConstraint(Sketcher.Constraint("Equal", 3, 4))
sketch2.addConstraint(Sketcher.Constraint("Equal", 6, 8))
sketch2.addConstraint(Sketcher.Constraint("Equal", 10, 12))
sketch2.addConstraint(Sketcher.Constraint("Equal", 14, 16))
sketch2.addConstraint(Sketcher.Constraint("Equal", 18, 20))
sketch2.addConstraint(Sketcher.Constraint("Equal", 22, 24))
sketch2.addConstraint(Sketcher.Constraint("Equal", 26, 28))
sketch2.addConstraint(Sketcher.Constraint("Equal", 30, 32))
sketch2.addConstraint(Sketcher.Constraint("Equal", 34, 36))
sketch2.addConstraint(Sketcher.Constraint("Equal", 38, 40))
sketch2.addConstraint(Sketcher.Constraint("Equal", 42, 44))
sketch2.addConstraint(Sketcher.Constraint("Radius", 0, 3.2))
sketch2.addConstraint(Sketcher.Constraint("DistanceX", 1, 1, 1, 2, 11.6))
sketch2.addConstraint(Sketcher.Constraint("DistanceX", -1, 1, 0, 3, 6.8))
sketch2.addConstraint(Sketcher.Constraint("DistanceX", -1, 1, 5, 3, 31.8))
sketch2.addConstraint(Sketcher.Constraint("DistanceX", -1, 1, 9, 3, 56.8))
sketch2.addConstraint(Sketcher.Constraint("DistanceX", -1, 1, 13, 3, 81.8))
sketch2.addConstraint(Sketcher.Constraint("DistanceX", -1, 1, 17, 3, 106.8))
sketch2.addConstraint(Sketcher.Constraint("DistanceX", -1, 1, 21, 3, 131.8))
sketch2.addConstraint(Sketcher.Constraint("DistanceX", -1, 1, 25, 3, 156.8))
sketch2.addConstraint(Sketcher.Constraint("DistanceX", -1, 1, 29, 3, 181.8))
sketch2.addConstraint(Sketcher.Constraint("DistanceX", -1, 1, 33, 3, 206.8))
sketch2.addConstraint(Sketcher.Constraint("DistanceX", -1, 1, 37, 3, 231.8))
sketch2.addConstraint(Sketcher.Constraint("DistanceX", -1, 1, 41, 3, 256.8))
sketch2.addConstraint(Sketcher.Constraint("DistanceX", -1, 1, 45, 3, 281.8))
sketch2.addConstraint(Sketcher.Constraint("DistanceY", -1, 1, 0, 3, 52.984))
sketch2.setExpression("Constraints[105]", "Params.sketch2_radius")
sketch2.setExpression("Constraints[106]", "Params.sketch2_width")
pocket1 = body.newObject("PartDesign::Pocket", "Pocket")
pocket1.Profile = sketch2
pocket1.setExpression("Length", "Params.pocket1_length")

doc.recompute()
